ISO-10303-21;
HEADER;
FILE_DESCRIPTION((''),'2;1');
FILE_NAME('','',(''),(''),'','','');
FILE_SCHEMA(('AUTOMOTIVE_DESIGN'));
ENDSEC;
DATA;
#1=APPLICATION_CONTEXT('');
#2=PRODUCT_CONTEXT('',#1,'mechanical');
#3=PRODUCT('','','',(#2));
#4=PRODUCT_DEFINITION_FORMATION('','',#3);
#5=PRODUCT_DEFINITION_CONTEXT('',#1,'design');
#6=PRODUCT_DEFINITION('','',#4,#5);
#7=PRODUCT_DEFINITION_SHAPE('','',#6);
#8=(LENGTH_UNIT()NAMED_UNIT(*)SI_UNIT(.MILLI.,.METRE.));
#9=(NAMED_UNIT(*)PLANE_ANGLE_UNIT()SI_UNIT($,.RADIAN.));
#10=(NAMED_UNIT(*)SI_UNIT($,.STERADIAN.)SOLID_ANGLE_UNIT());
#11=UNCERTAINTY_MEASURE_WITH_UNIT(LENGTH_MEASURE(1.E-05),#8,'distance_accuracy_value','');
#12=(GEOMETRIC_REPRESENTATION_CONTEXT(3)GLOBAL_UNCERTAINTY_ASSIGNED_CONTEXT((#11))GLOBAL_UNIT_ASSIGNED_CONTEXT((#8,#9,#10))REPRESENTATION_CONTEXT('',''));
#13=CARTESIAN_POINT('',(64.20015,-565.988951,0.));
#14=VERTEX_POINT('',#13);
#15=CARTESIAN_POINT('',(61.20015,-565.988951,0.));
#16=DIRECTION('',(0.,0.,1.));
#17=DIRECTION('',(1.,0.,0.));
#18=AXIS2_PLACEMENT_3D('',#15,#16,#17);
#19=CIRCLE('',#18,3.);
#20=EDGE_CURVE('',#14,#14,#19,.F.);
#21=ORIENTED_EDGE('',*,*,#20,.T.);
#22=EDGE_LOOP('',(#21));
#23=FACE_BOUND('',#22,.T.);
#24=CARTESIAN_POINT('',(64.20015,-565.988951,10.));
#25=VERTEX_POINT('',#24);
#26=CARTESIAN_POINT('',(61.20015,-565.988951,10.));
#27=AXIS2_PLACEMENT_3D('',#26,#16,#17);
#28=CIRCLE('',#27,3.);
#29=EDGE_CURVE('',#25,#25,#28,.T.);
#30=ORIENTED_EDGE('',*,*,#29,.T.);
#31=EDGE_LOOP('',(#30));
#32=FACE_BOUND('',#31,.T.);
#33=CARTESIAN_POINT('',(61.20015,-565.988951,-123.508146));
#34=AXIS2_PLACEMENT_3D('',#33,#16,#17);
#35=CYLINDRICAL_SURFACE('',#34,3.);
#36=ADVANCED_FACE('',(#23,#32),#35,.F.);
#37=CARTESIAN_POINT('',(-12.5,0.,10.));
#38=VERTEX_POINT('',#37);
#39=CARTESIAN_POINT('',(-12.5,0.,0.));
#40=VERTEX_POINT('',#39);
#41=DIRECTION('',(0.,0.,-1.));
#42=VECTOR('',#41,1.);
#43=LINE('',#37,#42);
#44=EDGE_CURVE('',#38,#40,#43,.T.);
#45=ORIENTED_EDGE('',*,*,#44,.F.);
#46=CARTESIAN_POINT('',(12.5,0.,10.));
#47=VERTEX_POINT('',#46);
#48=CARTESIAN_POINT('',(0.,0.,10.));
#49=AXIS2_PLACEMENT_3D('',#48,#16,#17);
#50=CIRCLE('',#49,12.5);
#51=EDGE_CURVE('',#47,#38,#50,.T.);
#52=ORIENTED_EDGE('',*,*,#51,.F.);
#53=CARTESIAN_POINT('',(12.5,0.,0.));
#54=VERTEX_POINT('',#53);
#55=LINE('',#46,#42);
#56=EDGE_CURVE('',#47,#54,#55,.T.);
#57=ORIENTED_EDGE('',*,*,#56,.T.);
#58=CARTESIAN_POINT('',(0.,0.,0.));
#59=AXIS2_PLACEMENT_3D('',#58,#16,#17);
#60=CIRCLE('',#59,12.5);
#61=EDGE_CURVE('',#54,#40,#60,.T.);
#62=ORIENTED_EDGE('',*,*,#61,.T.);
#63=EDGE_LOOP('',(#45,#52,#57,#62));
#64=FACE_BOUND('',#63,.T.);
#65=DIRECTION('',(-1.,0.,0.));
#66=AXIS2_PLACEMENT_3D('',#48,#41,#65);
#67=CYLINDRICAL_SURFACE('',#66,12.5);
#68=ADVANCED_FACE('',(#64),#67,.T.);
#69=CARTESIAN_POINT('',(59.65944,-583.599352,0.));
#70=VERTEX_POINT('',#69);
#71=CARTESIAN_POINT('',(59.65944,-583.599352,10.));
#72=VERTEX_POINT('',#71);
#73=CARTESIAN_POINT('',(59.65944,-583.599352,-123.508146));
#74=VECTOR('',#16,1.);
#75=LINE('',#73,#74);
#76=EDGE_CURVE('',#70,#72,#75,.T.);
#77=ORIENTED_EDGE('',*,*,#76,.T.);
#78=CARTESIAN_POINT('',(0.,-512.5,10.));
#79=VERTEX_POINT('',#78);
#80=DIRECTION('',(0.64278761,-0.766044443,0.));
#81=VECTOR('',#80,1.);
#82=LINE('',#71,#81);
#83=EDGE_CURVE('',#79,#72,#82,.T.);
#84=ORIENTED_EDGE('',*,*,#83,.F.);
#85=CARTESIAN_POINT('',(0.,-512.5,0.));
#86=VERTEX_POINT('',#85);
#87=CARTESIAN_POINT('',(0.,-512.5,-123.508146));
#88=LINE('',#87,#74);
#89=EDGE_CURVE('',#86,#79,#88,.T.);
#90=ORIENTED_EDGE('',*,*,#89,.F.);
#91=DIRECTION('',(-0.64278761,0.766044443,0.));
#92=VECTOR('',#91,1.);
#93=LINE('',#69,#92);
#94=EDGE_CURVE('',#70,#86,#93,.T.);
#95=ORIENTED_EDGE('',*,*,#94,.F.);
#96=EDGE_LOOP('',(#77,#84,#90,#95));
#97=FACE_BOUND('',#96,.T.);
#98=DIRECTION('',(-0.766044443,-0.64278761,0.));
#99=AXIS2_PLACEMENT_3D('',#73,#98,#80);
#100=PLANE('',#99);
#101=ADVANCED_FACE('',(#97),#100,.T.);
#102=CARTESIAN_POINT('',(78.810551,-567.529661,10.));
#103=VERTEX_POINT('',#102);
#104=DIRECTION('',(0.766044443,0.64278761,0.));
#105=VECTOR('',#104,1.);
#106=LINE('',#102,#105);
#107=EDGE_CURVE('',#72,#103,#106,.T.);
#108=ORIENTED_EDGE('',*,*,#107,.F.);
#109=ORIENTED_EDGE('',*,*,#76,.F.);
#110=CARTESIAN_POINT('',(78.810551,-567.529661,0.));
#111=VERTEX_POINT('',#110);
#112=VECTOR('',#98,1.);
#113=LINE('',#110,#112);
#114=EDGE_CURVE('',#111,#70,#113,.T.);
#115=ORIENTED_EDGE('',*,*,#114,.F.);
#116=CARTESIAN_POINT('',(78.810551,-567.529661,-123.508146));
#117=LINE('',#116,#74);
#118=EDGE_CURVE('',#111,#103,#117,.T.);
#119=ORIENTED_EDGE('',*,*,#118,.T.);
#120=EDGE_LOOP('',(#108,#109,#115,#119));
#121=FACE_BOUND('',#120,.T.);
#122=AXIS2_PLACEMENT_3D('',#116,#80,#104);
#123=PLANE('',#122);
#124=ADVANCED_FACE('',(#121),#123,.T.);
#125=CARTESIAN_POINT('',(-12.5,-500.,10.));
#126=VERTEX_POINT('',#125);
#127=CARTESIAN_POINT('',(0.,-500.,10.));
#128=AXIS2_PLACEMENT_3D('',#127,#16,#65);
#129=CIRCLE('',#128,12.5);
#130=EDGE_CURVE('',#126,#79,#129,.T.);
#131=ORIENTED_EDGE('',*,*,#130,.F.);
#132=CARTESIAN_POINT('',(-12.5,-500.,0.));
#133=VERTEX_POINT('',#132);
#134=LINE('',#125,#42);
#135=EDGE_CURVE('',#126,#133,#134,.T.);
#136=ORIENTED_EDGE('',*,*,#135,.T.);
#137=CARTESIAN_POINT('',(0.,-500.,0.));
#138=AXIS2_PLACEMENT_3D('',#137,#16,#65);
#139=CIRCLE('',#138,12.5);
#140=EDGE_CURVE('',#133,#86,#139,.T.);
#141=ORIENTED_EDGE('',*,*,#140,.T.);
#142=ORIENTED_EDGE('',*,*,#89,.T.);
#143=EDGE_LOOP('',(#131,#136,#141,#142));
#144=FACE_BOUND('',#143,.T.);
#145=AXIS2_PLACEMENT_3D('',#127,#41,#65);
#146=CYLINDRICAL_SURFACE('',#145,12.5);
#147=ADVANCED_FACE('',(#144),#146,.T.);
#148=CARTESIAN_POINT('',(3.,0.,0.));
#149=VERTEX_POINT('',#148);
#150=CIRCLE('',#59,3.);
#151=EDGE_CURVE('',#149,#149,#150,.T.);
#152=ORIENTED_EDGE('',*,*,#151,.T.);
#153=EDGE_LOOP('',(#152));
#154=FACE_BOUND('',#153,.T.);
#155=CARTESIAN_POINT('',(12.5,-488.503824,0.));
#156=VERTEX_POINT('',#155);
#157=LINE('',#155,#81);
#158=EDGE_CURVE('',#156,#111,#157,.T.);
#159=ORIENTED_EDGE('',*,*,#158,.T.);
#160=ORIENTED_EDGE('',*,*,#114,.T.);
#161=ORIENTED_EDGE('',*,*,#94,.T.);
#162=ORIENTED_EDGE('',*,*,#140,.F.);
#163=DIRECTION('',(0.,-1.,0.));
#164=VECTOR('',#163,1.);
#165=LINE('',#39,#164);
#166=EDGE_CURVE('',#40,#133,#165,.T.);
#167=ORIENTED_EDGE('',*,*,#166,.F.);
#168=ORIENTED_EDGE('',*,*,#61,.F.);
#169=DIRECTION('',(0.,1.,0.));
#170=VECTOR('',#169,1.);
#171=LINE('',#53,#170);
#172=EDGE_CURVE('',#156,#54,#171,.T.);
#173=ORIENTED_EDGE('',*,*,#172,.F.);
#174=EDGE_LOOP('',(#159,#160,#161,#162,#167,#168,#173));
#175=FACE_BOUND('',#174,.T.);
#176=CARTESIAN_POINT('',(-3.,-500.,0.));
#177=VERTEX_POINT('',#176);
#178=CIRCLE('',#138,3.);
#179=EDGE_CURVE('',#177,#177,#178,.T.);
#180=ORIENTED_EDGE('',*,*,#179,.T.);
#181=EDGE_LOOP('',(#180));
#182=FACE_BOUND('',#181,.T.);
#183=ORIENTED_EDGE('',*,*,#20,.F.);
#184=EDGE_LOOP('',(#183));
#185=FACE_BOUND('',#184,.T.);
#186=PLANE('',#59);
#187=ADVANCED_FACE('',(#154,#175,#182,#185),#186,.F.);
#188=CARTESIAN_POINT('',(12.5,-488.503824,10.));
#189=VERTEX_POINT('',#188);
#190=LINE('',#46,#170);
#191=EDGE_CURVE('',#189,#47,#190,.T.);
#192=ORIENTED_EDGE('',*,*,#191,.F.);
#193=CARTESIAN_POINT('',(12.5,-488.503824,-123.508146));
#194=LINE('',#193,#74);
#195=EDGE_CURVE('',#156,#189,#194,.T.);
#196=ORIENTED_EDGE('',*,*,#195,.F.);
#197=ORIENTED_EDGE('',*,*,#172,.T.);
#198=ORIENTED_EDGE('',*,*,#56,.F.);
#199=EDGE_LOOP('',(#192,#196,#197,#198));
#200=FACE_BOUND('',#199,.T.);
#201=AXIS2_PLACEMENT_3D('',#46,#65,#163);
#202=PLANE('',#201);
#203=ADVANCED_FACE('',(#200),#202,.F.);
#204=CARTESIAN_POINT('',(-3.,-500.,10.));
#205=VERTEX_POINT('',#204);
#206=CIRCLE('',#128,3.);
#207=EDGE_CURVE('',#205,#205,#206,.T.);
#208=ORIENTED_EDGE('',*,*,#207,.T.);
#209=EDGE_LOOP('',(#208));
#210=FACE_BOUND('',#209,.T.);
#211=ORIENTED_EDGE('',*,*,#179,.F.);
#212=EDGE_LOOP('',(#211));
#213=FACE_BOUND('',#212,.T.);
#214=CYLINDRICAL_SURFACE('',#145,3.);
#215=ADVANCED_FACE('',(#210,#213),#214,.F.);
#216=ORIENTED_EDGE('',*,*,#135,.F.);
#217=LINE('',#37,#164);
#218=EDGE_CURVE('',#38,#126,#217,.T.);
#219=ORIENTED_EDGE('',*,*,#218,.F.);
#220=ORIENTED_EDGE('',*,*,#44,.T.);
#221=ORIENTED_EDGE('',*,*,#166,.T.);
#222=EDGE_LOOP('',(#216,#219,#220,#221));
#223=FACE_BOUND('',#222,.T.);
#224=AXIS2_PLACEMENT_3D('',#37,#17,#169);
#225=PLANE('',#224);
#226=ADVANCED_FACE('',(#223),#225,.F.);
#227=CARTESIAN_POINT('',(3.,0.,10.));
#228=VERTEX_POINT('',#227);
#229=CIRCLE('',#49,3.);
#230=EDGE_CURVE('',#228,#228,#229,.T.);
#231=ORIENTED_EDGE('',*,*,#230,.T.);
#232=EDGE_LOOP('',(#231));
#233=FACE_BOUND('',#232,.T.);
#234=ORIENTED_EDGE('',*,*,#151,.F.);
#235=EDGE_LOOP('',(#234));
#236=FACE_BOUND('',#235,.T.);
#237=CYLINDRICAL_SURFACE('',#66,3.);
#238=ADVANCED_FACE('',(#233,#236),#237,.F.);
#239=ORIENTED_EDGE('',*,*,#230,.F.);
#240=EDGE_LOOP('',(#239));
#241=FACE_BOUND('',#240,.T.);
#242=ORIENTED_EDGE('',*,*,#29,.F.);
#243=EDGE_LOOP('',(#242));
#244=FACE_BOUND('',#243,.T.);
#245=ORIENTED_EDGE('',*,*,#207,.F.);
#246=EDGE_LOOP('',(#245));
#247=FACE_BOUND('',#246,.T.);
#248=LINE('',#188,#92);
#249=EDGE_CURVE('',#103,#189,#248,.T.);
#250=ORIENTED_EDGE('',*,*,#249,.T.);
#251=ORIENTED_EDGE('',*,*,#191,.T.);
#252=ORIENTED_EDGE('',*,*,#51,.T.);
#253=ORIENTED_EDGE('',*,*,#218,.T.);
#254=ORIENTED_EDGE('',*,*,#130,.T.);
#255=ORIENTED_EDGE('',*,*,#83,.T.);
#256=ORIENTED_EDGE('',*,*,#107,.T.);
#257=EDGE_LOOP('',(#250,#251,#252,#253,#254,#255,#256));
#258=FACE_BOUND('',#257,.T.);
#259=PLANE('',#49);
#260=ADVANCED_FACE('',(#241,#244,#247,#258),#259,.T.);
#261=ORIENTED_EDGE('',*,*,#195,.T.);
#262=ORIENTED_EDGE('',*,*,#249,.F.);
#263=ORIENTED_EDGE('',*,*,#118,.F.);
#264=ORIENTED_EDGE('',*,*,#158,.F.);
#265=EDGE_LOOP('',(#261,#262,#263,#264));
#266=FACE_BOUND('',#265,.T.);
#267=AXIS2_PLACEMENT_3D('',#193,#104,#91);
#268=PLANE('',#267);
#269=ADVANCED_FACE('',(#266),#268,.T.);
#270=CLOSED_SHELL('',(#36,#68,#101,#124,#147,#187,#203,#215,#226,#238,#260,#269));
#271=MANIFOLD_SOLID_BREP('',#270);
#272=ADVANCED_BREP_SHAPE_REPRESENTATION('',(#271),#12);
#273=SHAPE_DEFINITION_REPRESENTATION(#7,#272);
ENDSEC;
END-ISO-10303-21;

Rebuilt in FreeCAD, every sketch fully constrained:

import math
import FreeCAD as App
import Part
import Sketcher

V = App.Vector
Q = App.Units.Quantity

doc = App.newDocument("Part")
body = doc.addObject("PartDesign::Body", "Body")

# Sketch on XY plane
sketch1 = body.newObject("Sketcher::SketchObject", "Sketch")
sketch1.AttachmentSupport = (doc.getObject("XY_Plane"), [""])
sketch1.MapMode = "FlatFace"
sketch1.addGeometry([
    Part.LineSegment(V(-12.5, 0, 0), V(-12.5, -500, 0)),  # 0
    Part.ArcOfCircle(Part.Circle(V(0, -500, 0), V(0, 0, 1), 12.5), math.radians(180), math.radians(360)),  # 1
    Part.LineSegment(V(12.5, -500, 0), V(12.5, 0, 0)),  # 2
    Part.ArcOfCircle(Part.Circle(V(0, 0, 0), V(0, 0, 1), 12.5), math.radians(0), math.radians(180)),  # 3
    Part.Circle(V(0, -500, 0), V(0, 0, 1), 3),  # 4
    Part.Circle(V(0, 0, 0), V(0, 0, 1), 3),  # 5
], False)
sketch1.addConstraint([
    Sketcher.Constraint("Tangent", 0, 2, 1, 1),
    Sketcher.Constraint("Tangent", 1, 2, 2, 1),
    Sketcher.Constraint("Tangent", 2, 2, 3, 1),
    Sketcher.Constraint("Tangent", 3, 2, 0, 1),
    Sketcher.Constraint("Vertical", 0),
    Sketcher.Constraint("Vertical", 2),
    Sketcher.Constraint("Coincident", 3, 3, -1, 1),
    Sketcher.Constraint("Coincident", 5, 3, -1, 1),
    Sketcher.Constraint("Coincident", 4, 3, 1, 3),
    Sketcher.Constraint("Equal", 4, 5),
    Sketcher.Constraint("Diameter", 4, 6.0),
    Sketcher.Constraint("Radius", 1, 12.5),
    Sketcher.Constraint("DistanceY", 0, 2, 0, 1, 500.0),
])
pad1 = body.newObject("PartDesign::Pad", "Pad")
pad1.Profile = sketch1
pad1.Length = 10

# Sketch on XY plane
sketch2 = body.newObject("Sketcher::SketchObject", "Sketch001")
sketch2.AttachmentSupport = (doc.getObject("XY_Plane"), [""])
sketch2.MapMode = "FlatFace"
sketch2.AttachmentOffset = App.Placement(V(0, 0, 10), App.Rotation())
sketch2.addGeometry([
    Part.LineSegment(V(78.8, -567.5, 0), V(12.5, -488.5, 0)),  # 0
    Part.LineSegment(V(12.5, -488.5, 0), V(0, -512.5, 0)),  # 1
    Part.LineSegment(V(0, -512.5, 0), V(59.7, -583.6, 0)),  # 2
    Part.LineSegment(V(59.7, -583.6, 0), V(78.8, -567.5, 0)),  # 3
    Part.Circle(V(61.2, -566, 0), V(0, 0, 1), 3),  # 4
], False)
sketch2.addConstraint([
    Sketcher.Constraint("Coincident", 0, 2, 1, 1),
    Sketcher.Constraint("Coincident", 1, 2, 2, 1),
    Sketcher.Constraint("Coincident", 2, 2, 3, 1),
    Sketcher.Constraint("Coincident", 3, 2, 0, 1),
    Sketcher.Constraint("PointOnObject", 1, 2, -2),
    Sketcher.Constraint("Parallel", 0, 2),
    Sketcher.Constraint("Perpendicular", 2, 3),
    Sketcher.Constraint("Diameter", 4, 6.0),
    Sketcher.Constraint("Angle", 0, Q("130 deg")),
    Sketcher.Constraint("Distance", 3, 25.0),
    Sketcher.Constraint("DistanceX", -1, 1, 0, 2, 12.5),
    Sketcher.Constraint("DistanceY", 1, 2, -1, 1, 512.5),
    Sketcher.Constraint("DistanceY", 2, 2, 4, 3, 17.610401),
    Sketcher.Constraint("DistanceX", 4, 3, 3, 2, 17.610401),
    Sketcher.Constraint("Distance", 2, 92.813612),
])
pad2 = body.newObject("PartDesign::Pad", "Pad001")
pad2.Profile = sketch2
pad2.Length = 10
pad2.Reversed = True

doc.recompute()
